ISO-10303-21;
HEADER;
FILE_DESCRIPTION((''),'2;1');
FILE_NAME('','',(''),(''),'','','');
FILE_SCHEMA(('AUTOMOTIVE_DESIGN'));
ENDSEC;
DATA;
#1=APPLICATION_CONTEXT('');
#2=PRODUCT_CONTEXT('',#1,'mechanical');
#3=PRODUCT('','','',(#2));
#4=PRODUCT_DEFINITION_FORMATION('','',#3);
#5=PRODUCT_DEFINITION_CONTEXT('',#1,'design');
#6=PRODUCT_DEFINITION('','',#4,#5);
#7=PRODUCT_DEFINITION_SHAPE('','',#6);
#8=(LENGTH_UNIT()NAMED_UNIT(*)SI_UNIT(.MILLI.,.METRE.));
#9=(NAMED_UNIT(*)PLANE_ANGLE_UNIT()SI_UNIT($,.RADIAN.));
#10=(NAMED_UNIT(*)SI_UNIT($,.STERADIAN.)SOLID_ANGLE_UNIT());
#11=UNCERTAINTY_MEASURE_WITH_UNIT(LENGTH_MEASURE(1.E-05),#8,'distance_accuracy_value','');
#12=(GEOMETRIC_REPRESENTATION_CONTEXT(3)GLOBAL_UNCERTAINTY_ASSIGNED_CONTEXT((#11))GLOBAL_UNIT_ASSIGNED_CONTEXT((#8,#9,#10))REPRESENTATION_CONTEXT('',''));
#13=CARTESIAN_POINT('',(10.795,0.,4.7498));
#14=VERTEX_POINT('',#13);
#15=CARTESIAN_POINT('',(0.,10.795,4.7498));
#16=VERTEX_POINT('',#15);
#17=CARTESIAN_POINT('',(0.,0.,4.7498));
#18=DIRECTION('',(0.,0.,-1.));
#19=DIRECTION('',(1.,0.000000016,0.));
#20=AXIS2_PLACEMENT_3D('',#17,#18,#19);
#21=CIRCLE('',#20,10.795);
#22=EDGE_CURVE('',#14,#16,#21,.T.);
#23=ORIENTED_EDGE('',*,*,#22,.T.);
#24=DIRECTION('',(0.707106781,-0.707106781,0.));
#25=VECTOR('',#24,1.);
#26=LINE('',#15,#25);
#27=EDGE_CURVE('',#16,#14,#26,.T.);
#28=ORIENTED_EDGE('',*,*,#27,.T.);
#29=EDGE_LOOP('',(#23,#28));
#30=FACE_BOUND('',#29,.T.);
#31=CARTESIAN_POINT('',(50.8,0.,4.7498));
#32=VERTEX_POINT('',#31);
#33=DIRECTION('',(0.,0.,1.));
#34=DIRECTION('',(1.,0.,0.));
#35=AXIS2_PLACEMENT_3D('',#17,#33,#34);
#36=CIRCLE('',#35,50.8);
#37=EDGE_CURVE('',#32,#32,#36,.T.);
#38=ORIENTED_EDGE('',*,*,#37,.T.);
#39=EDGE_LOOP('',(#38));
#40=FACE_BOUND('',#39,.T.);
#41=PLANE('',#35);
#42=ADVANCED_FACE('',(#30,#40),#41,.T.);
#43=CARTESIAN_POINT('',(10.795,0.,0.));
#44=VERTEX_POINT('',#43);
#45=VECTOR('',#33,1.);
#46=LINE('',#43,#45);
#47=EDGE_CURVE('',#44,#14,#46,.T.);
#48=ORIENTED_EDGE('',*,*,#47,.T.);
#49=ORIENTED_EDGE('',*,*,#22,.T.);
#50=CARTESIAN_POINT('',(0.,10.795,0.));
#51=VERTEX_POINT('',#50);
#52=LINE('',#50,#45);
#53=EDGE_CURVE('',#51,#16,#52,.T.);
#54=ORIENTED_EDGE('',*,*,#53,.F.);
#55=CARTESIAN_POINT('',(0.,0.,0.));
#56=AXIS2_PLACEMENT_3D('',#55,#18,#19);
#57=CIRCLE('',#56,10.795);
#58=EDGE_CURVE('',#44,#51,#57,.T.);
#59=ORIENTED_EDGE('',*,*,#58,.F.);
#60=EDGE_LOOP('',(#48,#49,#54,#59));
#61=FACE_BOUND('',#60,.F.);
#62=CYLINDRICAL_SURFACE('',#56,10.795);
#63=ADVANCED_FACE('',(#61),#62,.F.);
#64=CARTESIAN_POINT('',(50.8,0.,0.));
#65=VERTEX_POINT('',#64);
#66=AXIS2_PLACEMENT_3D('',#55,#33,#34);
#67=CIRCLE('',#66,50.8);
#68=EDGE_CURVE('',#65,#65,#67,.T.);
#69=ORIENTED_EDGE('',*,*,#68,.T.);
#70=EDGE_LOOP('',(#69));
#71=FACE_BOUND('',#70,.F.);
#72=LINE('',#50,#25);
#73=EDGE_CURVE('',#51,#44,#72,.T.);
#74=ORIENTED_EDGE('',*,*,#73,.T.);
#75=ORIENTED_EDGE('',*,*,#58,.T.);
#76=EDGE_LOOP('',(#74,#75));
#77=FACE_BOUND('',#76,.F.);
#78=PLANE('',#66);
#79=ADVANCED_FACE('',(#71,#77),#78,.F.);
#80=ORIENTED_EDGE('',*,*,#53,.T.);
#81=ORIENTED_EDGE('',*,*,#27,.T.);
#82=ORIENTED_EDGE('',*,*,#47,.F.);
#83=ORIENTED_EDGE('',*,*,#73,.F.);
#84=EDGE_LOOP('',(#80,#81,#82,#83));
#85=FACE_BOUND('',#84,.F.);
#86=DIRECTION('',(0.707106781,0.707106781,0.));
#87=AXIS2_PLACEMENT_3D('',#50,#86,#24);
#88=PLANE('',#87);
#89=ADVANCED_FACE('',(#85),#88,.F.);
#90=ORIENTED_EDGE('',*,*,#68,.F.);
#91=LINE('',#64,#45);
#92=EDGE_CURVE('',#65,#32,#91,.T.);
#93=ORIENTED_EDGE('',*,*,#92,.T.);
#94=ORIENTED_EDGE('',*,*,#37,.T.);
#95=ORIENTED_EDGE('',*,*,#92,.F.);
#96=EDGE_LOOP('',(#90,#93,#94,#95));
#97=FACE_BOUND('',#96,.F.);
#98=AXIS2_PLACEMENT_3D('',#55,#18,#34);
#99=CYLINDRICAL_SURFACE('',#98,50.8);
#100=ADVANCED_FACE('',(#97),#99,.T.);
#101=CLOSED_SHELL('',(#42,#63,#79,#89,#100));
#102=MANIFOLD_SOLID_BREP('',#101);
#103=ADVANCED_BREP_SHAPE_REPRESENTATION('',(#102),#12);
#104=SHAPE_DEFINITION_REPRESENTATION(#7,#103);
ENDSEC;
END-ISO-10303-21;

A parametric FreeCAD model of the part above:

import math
import FreeCAD as App
import Part
import Sketcher
from FreeCAD import Vector
Q = App.Units.Quantity

doc = App.newDocument("Part")
body = doc.addObject("PartDesign::Body", "Body")

# Sketch on XY plane
sketch1 = body.newObject("Sketcher::SketchObject", "Sketch")
sketch1.AttachmentSupport = (doc.getObject("XY_Plane"), [""])
sketch1.MapMode = "FlatFace"
sketch1.addGeometry(Part.Circle(Vector(0, 0, 0), Vector(0, 0, 1), 51), False)
sketch1.addGeometry(Part.LineSegment(Vector(0, 11, 0), Vector(11, 0, 0)), False)
sketch1.addGeometry(Part.ArcOfCircle(Part.Circle(Vector(0, 0, 0), Vector(0, 0, 1), 11), math.radians(90), math.radians(360)), False)
sketch1.addConstraint(Sketcher.Constraint("Coincident", 1, 1, 2, 1))
sketch1.addConstraint(Sketcher.Constraint("Coincident", 2, 2, 1, 2))
sketch1.addConstraint(Sketcher.Constraint("Coincident", 0, 3, -1, 1))
sketch1.addConstraint(Sketcher.Constraint("Coincident", 2, 3, -1, 1))
sketch1.addConstraint(Sketcher.Constraint("PointOnObject", 1, 1, -2))
sketch1.addConstraint(Sketcher.Constraint("PointOnObject", 2, 2, -1))
sketch1.addConstraint(Sketcher.Constraint("Diameter", 0, Q("4 in")))
sketch1.addConstraint(Sketcher.Constraint("Radius", 2, Q("0.425 in")))
pad1 = body.newObject("PartDesign::Pad", "Pad")
pad1.Profile = sketch1
pad1.Length = Q("0.187 in")

doc.recompute()
